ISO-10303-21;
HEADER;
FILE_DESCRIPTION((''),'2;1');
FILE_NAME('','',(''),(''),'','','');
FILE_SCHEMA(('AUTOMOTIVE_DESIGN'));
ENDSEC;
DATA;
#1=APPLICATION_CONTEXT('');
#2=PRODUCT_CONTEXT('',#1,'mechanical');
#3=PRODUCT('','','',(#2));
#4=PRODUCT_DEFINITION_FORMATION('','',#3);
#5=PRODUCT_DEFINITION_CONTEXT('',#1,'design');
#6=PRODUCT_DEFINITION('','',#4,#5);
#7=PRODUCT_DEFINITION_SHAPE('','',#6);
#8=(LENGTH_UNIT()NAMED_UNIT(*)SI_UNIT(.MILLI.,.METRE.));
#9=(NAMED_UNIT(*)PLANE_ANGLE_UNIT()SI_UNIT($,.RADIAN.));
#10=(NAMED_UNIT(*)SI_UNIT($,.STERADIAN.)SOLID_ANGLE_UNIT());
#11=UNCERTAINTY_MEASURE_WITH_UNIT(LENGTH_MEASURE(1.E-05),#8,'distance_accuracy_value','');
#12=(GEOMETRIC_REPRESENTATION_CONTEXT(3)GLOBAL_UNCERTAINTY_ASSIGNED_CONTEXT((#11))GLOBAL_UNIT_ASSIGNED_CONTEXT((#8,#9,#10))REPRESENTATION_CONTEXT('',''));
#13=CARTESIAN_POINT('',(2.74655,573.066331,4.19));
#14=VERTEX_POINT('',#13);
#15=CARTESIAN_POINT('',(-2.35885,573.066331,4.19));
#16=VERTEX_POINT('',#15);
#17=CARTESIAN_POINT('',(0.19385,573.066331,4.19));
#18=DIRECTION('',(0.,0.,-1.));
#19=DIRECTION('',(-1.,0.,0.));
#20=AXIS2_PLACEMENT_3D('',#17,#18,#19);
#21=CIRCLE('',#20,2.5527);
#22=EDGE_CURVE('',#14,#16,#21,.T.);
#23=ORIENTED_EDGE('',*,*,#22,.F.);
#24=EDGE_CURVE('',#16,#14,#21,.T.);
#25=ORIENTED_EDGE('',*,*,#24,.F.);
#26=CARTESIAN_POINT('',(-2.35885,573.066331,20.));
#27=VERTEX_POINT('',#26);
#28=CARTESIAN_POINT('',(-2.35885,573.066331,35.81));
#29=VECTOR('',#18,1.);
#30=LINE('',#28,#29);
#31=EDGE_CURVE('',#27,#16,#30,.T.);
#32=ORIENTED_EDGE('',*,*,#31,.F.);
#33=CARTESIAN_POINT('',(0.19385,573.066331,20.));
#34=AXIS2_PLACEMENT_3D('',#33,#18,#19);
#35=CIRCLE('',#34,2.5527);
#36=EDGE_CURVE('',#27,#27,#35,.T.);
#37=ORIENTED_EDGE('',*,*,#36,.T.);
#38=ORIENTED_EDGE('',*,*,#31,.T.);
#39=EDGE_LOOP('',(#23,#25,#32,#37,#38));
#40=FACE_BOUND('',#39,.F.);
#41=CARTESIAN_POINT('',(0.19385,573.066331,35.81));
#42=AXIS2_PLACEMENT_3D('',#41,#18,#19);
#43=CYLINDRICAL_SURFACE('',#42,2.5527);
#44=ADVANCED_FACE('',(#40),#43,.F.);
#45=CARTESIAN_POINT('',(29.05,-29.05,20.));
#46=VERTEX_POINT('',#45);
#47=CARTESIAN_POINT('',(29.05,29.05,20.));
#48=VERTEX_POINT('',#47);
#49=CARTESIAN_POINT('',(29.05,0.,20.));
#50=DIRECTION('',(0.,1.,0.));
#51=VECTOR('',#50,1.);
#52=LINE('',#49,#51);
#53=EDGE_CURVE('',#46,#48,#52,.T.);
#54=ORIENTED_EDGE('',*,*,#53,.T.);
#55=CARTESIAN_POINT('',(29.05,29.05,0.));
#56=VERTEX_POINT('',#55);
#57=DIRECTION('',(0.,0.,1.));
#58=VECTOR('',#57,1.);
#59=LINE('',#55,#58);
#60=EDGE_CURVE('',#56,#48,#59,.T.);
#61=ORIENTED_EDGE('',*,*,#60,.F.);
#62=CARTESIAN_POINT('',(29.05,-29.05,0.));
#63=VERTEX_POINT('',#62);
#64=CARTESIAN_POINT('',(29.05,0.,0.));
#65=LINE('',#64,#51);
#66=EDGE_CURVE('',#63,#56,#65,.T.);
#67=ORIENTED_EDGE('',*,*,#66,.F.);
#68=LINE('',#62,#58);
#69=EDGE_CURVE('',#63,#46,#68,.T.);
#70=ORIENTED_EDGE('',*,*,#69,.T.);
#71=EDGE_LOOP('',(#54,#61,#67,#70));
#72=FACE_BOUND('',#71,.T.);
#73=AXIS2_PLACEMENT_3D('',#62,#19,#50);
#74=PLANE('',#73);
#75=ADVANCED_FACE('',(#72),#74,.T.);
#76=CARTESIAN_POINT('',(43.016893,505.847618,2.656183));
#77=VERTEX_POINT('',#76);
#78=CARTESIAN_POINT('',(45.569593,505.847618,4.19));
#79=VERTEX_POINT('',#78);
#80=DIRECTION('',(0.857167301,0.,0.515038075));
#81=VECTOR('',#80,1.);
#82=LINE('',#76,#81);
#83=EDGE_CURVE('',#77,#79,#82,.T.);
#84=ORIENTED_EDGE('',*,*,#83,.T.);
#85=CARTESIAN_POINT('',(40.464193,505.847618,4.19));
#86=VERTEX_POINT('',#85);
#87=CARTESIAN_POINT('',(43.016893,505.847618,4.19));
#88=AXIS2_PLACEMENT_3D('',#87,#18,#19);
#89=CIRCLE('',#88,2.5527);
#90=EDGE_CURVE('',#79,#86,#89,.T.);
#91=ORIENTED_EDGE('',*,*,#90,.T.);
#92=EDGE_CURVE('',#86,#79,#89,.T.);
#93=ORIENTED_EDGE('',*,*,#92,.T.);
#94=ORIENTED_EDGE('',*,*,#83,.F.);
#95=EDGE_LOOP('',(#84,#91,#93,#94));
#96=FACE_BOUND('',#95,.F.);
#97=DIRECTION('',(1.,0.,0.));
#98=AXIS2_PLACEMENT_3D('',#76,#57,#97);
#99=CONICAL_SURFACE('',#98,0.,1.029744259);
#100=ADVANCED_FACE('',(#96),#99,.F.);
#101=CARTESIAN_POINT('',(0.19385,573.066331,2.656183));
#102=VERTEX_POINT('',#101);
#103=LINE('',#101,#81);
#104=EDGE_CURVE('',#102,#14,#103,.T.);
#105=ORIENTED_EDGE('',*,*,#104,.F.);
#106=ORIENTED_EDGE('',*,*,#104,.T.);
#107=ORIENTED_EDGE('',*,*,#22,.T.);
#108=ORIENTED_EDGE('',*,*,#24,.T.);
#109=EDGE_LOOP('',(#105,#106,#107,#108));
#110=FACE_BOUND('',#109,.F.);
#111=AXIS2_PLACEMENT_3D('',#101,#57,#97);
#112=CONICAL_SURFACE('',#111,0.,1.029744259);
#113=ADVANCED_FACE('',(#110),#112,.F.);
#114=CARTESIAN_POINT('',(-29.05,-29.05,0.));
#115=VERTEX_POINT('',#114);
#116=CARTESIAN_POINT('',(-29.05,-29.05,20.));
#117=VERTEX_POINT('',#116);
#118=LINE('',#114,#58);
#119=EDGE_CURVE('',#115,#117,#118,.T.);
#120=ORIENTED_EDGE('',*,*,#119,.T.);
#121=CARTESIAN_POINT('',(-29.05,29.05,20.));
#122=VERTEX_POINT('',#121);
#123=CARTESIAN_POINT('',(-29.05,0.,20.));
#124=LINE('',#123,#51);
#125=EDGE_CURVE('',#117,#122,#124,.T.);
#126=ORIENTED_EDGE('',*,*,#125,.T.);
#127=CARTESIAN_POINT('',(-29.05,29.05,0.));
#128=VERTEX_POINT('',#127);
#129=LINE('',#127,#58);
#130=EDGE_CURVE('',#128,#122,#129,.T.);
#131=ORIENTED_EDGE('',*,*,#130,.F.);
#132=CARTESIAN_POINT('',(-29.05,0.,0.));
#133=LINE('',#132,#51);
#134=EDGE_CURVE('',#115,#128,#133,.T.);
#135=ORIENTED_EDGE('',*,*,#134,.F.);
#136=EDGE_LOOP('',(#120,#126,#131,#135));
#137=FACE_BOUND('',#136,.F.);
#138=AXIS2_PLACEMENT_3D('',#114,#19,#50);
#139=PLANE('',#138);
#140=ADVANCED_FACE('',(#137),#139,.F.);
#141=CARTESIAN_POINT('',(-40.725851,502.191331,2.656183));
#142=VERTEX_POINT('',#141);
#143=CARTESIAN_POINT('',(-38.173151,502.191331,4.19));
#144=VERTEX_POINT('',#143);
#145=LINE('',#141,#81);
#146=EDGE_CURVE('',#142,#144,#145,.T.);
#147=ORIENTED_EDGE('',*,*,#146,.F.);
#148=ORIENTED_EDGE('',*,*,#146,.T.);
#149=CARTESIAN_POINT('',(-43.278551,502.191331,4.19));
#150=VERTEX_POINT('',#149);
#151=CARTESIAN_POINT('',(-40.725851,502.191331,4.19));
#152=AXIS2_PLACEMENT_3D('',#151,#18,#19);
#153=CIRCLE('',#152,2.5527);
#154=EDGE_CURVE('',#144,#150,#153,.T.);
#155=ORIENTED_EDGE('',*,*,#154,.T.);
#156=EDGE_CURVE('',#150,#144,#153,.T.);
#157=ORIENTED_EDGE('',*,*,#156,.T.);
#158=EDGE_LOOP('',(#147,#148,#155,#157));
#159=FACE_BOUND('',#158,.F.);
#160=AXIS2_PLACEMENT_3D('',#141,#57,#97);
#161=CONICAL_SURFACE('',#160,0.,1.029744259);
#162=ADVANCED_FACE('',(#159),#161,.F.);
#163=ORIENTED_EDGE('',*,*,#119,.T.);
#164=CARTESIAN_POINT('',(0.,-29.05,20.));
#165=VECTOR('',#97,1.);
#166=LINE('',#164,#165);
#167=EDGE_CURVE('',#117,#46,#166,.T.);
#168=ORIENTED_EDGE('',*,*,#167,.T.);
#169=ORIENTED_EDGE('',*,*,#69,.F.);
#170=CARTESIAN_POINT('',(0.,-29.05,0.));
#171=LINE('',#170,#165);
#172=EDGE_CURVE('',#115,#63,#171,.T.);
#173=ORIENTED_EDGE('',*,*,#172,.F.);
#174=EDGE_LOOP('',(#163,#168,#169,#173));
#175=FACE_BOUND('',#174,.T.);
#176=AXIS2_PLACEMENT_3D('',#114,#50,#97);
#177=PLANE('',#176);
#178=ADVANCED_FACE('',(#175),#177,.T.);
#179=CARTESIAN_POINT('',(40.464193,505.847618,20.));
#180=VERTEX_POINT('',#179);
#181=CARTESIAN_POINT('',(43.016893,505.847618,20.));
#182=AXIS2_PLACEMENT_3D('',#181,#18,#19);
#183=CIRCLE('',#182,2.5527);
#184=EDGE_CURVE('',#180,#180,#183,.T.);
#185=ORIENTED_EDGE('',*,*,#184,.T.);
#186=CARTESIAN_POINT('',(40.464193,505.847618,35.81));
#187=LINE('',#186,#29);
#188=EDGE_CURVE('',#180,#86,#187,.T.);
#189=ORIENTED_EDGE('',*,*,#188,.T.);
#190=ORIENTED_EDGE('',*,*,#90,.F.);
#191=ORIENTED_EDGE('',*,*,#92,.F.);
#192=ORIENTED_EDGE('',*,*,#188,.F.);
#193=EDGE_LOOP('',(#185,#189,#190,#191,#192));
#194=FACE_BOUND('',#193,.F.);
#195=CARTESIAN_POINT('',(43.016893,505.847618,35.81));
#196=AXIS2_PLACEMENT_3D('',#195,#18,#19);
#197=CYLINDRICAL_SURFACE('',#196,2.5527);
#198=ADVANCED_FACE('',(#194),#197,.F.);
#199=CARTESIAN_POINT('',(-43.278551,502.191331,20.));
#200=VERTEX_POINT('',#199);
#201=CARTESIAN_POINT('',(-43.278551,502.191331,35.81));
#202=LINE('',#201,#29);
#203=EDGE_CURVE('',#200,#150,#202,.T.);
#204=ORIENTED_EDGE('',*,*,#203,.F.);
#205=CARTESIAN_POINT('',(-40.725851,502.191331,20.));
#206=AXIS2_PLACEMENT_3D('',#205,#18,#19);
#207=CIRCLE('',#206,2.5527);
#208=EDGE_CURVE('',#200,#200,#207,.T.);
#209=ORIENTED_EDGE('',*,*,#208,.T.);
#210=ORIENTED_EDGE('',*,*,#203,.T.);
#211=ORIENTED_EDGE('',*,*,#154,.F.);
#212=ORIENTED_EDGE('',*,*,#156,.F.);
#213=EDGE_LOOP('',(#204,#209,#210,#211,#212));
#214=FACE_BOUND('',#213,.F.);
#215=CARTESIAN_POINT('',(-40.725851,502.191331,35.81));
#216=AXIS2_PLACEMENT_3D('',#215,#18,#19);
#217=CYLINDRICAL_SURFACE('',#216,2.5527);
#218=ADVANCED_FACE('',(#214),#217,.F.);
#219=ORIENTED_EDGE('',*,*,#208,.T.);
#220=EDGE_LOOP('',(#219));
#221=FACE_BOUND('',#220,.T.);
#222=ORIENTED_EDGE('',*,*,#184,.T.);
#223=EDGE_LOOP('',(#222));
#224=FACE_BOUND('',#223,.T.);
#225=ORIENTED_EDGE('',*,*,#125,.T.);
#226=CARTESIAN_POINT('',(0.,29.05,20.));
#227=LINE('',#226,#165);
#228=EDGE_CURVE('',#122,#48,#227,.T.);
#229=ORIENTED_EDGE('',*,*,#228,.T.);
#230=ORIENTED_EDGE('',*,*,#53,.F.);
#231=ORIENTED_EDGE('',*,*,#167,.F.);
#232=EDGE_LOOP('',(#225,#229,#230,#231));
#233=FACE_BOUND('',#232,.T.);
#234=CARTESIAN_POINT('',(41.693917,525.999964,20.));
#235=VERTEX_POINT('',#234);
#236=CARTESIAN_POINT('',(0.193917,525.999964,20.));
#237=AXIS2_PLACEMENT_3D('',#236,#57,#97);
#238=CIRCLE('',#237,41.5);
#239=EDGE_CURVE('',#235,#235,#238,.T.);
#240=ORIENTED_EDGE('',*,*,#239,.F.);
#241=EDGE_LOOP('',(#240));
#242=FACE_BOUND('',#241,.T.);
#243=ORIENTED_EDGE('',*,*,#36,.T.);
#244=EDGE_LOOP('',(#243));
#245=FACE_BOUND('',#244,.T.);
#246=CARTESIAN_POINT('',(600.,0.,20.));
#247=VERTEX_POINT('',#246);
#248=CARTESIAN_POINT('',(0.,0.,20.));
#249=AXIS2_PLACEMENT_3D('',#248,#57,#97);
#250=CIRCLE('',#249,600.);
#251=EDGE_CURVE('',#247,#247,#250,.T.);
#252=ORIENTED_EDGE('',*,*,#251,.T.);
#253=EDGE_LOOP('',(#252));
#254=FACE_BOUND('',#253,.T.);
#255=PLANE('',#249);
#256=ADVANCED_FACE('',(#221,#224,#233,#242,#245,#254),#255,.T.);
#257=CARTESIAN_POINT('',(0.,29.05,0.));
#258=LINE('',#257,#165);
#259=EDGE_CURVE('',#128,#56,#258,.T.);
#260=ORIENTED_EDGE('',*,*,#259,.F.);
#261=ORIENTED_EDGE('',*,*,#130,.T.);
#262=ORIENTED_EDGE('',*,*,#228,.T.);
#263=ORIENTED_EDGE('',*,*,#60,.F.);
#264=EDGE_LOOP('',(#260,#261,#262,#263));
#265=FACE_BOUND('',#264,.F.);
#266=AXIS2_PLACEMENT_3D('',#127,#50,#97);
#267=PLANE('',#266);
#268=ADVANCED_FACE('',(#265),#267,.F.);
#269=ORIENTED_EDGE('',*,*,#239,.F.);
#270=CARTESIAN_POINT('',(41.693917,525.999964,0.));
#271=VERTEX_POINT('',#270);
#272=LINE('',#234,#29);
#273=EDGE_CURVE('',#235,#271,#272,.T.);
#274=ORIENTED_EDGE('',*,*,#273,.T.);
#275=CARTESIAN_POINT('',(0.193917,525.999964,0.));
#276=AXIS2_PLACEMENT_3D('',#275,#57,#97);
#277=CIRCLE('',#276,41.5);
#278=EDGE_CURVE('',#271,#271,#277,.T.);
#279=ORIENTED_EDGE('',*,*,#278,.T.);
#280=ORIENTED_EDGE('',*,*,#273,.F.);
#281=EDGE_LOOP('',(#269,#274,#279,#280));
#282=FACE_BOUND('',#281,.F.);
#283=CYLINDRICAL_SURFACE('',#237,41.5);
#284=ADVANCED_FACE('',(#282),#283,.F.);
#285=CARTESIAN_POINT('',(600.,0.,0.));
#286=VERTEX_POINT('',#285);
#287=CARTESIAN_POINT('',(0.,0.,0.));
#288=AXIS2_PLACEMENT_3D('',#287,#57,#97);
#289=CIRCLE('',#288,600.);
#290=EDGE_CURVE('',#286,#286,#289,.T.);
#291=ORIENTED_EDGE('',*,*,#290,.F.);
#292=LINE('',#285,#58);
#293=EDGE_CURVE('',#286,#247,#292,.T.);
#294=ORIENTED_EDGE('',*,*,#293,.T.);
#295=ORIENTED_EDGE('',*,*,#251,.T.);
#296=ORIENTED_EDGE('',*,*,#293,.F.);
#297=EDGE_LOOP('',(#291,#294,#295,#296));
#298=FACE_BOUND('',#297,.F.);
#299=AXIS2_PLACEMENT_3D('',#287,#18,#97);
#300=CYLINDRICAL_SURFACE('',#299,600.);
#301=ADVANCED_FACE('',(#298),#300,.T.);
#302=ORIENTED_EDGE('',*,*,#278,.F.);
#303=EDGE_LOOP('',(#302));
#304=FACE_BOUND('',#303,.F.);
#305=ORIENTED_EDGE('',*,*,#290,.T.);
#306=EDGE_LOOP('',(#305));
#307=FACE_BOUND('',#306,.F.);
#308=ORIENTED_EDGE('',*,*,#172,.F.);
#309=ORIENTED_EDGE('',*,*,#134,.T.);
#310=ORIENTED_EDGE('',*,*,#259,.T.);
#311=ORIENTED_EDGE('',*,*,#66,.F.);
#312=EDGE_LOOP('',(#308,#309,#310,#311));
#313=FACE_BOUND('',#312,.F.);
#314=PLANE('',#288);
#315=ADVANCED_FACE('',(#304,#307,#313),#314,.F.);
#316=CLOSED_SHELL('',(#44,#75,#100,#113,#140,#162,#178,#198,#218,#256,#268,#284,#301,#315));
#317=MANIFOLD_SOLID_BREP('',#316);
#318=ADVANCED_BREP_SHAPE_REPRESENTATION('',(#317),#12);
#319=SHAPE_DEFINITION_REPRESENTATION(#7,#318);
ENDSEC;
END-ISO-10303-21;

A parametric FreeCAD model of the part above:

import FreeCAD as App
import Part
import Sketcher
from FreeCAD import Vector
Q = App.Units.Quantity

doc = App.newDocument("Part")
body = doc.addObject("PartDesign::Body", "Body")

sketch1 = body.newObject("Sketcher::SketchObject", "Sketch")
sketch1.AttachmentSupport = (doc.getObject("XY_Plane"), [""])
sketch1.MapMode = "FlatFace"
sketch1.addGeometry([
    Part.Circle(Vector(0, 0, 0), Vector(0, 0, 1), 600),
    Part.LineSegment(Vector(29, -29, 0), Vector(-29, -29, 0)),
    Part.LineSegment(Vector(-29, -29, 0), Vector(-29, 29, 0)),
    Part.LineSegment(Vector(-29, 29, 0), Vector(29, 29, 0)),
    Part.LineSegment(Vector(29, 29, 0), Vector(29, -29, 0)),
], False)
sketch1.addConstraint([
    Sketcher.Constraint("Coincident", 1, 2, 2, 1),
    Sketcher.Constraint("Coincident", 2, 2, 3, 1),
    Sketcher.Constraint("Coincident", 3, 2, 4, 1),
    Sketcher.Constraint("Coincident", 4, 2, 1, 1),
    Sketcher.Constraint("Horizontal", 1),
    Sketcher.Constraint("Vertical", 2),
    Sketcher.Constraint("Horizontal", 3),
    Sketcher.Constraint("Vertical", 4),
    Sketcher.Constraint("Coincident", 0, 3, -1, 1),
    Sketcher.Constraint("Symmetric", 1, 2, 3, 2, -1, 1),
    Sketcher.Constraint("Equal", 3, 2),
    Sketcher.Constraint("Diameter", 0, Q("1200 mm")),
    Sketcher.Constraint("DistanceX", 1, 2, 1, 1, Q("58.1 mm")),
])
pad1 = body.newObject("PartDesign::Pad", "Pad")
pad1.Profile = sketch1
pad1.Length = 20

sketch2 = body.newObject("Sketcher::SketchObject", "Sketch001")
sketch2.AttachmentSupport = (doc.getObject("XY_Plane"), [""])
sketch2.MapMode = "FlatFace"
sketch2.AttachmentOffset = App.Placement(Vector(0, 0, 20), App.Rotation())
sketch2.addGeometry(Part.Circle(Vector(0, 526, 0), Vector(0, 0, 1), 42), False)
sketch2.addConstraint([
    Sketcher.Constraint("Diameter", 0, Q("83 mm")),
    Sketcher.Constraint("DistanceX", -1, 1, 0, 3, Q("0.193917 mm")),
    Sketcher.Constraint("DistanceY", -1, 1, 0, 3, Q("525.999964 mm")),
])
pocket1 = body.newObject("PartDesign::Pocket", "Pocket")
pocket1.Profile = sketch2
pocket1.Type = "ThroughAll"

sketch3 = body.newObject("Sketcher::SketchObject", "Sketch002")
sketch3.AttachmentSupport = (doc.getObject("XY_Plane"), [""])
sketch3.MapMode = "FlatFace"
sketch3.AttachmentOffset = App.Placement(Vector(0, 0, 20), App.Rotation())
sketch3.addGeometry([
    Part.Circle(Vector(-40.7, 502.2, 0), Vector(0, 0, 1), 2.6),
    Part.Circle(Vector(43, 505.8, 0), Vector(0, 0, 1), 2.6),
    Part.Circle(Vector(0.2, 573.1, 0), Vector(0, 0, 1), 2.6),
], False)
sketch3.addConstraint([
    Sketcher.Constraint("Equal", 0, 1),
    Sketcher.Constraint("Equal", 1, 2),
    Sketcher.Constraint("Diameter", 0, Q("5.1054 mm")),
    Sketcher.Constraint("DistanceY", 0, 3, 2, 3, Q("70.875 mm")),
    Sketcher.Constraint("DistanceX", 0, 3, 2, 3, Q("40.9197 mm")),
    Sketcher.Constraint("DistanceX", 0, 3, -1, 1, Q("40.725851 mm")),
    Sketcher.Constraint("DistanceY", -1, 1, 0, 3, Q("502.191331 mm")),
    Sketcher.Constraint("DistanceY", -1, 1, 1, 3, Q("505.847618 mm")),
    Sketcher.Constraint("DistanceX", -1, 1, 1, 3, Q("43.016893 mm")),
])
doc.recompute()
hole = body.newObject("PartDesign::Hole", "Hole")
hole.Profile = sketch3
hole.ThreadType = "None"
hole.Diameter = 5.1054
hole.DepthType = "Dimension"
hole.Depth = 15.81
hole.DrillPoint = "Angled"
hole.DrillPointAngle = 118

doc.recompute()
